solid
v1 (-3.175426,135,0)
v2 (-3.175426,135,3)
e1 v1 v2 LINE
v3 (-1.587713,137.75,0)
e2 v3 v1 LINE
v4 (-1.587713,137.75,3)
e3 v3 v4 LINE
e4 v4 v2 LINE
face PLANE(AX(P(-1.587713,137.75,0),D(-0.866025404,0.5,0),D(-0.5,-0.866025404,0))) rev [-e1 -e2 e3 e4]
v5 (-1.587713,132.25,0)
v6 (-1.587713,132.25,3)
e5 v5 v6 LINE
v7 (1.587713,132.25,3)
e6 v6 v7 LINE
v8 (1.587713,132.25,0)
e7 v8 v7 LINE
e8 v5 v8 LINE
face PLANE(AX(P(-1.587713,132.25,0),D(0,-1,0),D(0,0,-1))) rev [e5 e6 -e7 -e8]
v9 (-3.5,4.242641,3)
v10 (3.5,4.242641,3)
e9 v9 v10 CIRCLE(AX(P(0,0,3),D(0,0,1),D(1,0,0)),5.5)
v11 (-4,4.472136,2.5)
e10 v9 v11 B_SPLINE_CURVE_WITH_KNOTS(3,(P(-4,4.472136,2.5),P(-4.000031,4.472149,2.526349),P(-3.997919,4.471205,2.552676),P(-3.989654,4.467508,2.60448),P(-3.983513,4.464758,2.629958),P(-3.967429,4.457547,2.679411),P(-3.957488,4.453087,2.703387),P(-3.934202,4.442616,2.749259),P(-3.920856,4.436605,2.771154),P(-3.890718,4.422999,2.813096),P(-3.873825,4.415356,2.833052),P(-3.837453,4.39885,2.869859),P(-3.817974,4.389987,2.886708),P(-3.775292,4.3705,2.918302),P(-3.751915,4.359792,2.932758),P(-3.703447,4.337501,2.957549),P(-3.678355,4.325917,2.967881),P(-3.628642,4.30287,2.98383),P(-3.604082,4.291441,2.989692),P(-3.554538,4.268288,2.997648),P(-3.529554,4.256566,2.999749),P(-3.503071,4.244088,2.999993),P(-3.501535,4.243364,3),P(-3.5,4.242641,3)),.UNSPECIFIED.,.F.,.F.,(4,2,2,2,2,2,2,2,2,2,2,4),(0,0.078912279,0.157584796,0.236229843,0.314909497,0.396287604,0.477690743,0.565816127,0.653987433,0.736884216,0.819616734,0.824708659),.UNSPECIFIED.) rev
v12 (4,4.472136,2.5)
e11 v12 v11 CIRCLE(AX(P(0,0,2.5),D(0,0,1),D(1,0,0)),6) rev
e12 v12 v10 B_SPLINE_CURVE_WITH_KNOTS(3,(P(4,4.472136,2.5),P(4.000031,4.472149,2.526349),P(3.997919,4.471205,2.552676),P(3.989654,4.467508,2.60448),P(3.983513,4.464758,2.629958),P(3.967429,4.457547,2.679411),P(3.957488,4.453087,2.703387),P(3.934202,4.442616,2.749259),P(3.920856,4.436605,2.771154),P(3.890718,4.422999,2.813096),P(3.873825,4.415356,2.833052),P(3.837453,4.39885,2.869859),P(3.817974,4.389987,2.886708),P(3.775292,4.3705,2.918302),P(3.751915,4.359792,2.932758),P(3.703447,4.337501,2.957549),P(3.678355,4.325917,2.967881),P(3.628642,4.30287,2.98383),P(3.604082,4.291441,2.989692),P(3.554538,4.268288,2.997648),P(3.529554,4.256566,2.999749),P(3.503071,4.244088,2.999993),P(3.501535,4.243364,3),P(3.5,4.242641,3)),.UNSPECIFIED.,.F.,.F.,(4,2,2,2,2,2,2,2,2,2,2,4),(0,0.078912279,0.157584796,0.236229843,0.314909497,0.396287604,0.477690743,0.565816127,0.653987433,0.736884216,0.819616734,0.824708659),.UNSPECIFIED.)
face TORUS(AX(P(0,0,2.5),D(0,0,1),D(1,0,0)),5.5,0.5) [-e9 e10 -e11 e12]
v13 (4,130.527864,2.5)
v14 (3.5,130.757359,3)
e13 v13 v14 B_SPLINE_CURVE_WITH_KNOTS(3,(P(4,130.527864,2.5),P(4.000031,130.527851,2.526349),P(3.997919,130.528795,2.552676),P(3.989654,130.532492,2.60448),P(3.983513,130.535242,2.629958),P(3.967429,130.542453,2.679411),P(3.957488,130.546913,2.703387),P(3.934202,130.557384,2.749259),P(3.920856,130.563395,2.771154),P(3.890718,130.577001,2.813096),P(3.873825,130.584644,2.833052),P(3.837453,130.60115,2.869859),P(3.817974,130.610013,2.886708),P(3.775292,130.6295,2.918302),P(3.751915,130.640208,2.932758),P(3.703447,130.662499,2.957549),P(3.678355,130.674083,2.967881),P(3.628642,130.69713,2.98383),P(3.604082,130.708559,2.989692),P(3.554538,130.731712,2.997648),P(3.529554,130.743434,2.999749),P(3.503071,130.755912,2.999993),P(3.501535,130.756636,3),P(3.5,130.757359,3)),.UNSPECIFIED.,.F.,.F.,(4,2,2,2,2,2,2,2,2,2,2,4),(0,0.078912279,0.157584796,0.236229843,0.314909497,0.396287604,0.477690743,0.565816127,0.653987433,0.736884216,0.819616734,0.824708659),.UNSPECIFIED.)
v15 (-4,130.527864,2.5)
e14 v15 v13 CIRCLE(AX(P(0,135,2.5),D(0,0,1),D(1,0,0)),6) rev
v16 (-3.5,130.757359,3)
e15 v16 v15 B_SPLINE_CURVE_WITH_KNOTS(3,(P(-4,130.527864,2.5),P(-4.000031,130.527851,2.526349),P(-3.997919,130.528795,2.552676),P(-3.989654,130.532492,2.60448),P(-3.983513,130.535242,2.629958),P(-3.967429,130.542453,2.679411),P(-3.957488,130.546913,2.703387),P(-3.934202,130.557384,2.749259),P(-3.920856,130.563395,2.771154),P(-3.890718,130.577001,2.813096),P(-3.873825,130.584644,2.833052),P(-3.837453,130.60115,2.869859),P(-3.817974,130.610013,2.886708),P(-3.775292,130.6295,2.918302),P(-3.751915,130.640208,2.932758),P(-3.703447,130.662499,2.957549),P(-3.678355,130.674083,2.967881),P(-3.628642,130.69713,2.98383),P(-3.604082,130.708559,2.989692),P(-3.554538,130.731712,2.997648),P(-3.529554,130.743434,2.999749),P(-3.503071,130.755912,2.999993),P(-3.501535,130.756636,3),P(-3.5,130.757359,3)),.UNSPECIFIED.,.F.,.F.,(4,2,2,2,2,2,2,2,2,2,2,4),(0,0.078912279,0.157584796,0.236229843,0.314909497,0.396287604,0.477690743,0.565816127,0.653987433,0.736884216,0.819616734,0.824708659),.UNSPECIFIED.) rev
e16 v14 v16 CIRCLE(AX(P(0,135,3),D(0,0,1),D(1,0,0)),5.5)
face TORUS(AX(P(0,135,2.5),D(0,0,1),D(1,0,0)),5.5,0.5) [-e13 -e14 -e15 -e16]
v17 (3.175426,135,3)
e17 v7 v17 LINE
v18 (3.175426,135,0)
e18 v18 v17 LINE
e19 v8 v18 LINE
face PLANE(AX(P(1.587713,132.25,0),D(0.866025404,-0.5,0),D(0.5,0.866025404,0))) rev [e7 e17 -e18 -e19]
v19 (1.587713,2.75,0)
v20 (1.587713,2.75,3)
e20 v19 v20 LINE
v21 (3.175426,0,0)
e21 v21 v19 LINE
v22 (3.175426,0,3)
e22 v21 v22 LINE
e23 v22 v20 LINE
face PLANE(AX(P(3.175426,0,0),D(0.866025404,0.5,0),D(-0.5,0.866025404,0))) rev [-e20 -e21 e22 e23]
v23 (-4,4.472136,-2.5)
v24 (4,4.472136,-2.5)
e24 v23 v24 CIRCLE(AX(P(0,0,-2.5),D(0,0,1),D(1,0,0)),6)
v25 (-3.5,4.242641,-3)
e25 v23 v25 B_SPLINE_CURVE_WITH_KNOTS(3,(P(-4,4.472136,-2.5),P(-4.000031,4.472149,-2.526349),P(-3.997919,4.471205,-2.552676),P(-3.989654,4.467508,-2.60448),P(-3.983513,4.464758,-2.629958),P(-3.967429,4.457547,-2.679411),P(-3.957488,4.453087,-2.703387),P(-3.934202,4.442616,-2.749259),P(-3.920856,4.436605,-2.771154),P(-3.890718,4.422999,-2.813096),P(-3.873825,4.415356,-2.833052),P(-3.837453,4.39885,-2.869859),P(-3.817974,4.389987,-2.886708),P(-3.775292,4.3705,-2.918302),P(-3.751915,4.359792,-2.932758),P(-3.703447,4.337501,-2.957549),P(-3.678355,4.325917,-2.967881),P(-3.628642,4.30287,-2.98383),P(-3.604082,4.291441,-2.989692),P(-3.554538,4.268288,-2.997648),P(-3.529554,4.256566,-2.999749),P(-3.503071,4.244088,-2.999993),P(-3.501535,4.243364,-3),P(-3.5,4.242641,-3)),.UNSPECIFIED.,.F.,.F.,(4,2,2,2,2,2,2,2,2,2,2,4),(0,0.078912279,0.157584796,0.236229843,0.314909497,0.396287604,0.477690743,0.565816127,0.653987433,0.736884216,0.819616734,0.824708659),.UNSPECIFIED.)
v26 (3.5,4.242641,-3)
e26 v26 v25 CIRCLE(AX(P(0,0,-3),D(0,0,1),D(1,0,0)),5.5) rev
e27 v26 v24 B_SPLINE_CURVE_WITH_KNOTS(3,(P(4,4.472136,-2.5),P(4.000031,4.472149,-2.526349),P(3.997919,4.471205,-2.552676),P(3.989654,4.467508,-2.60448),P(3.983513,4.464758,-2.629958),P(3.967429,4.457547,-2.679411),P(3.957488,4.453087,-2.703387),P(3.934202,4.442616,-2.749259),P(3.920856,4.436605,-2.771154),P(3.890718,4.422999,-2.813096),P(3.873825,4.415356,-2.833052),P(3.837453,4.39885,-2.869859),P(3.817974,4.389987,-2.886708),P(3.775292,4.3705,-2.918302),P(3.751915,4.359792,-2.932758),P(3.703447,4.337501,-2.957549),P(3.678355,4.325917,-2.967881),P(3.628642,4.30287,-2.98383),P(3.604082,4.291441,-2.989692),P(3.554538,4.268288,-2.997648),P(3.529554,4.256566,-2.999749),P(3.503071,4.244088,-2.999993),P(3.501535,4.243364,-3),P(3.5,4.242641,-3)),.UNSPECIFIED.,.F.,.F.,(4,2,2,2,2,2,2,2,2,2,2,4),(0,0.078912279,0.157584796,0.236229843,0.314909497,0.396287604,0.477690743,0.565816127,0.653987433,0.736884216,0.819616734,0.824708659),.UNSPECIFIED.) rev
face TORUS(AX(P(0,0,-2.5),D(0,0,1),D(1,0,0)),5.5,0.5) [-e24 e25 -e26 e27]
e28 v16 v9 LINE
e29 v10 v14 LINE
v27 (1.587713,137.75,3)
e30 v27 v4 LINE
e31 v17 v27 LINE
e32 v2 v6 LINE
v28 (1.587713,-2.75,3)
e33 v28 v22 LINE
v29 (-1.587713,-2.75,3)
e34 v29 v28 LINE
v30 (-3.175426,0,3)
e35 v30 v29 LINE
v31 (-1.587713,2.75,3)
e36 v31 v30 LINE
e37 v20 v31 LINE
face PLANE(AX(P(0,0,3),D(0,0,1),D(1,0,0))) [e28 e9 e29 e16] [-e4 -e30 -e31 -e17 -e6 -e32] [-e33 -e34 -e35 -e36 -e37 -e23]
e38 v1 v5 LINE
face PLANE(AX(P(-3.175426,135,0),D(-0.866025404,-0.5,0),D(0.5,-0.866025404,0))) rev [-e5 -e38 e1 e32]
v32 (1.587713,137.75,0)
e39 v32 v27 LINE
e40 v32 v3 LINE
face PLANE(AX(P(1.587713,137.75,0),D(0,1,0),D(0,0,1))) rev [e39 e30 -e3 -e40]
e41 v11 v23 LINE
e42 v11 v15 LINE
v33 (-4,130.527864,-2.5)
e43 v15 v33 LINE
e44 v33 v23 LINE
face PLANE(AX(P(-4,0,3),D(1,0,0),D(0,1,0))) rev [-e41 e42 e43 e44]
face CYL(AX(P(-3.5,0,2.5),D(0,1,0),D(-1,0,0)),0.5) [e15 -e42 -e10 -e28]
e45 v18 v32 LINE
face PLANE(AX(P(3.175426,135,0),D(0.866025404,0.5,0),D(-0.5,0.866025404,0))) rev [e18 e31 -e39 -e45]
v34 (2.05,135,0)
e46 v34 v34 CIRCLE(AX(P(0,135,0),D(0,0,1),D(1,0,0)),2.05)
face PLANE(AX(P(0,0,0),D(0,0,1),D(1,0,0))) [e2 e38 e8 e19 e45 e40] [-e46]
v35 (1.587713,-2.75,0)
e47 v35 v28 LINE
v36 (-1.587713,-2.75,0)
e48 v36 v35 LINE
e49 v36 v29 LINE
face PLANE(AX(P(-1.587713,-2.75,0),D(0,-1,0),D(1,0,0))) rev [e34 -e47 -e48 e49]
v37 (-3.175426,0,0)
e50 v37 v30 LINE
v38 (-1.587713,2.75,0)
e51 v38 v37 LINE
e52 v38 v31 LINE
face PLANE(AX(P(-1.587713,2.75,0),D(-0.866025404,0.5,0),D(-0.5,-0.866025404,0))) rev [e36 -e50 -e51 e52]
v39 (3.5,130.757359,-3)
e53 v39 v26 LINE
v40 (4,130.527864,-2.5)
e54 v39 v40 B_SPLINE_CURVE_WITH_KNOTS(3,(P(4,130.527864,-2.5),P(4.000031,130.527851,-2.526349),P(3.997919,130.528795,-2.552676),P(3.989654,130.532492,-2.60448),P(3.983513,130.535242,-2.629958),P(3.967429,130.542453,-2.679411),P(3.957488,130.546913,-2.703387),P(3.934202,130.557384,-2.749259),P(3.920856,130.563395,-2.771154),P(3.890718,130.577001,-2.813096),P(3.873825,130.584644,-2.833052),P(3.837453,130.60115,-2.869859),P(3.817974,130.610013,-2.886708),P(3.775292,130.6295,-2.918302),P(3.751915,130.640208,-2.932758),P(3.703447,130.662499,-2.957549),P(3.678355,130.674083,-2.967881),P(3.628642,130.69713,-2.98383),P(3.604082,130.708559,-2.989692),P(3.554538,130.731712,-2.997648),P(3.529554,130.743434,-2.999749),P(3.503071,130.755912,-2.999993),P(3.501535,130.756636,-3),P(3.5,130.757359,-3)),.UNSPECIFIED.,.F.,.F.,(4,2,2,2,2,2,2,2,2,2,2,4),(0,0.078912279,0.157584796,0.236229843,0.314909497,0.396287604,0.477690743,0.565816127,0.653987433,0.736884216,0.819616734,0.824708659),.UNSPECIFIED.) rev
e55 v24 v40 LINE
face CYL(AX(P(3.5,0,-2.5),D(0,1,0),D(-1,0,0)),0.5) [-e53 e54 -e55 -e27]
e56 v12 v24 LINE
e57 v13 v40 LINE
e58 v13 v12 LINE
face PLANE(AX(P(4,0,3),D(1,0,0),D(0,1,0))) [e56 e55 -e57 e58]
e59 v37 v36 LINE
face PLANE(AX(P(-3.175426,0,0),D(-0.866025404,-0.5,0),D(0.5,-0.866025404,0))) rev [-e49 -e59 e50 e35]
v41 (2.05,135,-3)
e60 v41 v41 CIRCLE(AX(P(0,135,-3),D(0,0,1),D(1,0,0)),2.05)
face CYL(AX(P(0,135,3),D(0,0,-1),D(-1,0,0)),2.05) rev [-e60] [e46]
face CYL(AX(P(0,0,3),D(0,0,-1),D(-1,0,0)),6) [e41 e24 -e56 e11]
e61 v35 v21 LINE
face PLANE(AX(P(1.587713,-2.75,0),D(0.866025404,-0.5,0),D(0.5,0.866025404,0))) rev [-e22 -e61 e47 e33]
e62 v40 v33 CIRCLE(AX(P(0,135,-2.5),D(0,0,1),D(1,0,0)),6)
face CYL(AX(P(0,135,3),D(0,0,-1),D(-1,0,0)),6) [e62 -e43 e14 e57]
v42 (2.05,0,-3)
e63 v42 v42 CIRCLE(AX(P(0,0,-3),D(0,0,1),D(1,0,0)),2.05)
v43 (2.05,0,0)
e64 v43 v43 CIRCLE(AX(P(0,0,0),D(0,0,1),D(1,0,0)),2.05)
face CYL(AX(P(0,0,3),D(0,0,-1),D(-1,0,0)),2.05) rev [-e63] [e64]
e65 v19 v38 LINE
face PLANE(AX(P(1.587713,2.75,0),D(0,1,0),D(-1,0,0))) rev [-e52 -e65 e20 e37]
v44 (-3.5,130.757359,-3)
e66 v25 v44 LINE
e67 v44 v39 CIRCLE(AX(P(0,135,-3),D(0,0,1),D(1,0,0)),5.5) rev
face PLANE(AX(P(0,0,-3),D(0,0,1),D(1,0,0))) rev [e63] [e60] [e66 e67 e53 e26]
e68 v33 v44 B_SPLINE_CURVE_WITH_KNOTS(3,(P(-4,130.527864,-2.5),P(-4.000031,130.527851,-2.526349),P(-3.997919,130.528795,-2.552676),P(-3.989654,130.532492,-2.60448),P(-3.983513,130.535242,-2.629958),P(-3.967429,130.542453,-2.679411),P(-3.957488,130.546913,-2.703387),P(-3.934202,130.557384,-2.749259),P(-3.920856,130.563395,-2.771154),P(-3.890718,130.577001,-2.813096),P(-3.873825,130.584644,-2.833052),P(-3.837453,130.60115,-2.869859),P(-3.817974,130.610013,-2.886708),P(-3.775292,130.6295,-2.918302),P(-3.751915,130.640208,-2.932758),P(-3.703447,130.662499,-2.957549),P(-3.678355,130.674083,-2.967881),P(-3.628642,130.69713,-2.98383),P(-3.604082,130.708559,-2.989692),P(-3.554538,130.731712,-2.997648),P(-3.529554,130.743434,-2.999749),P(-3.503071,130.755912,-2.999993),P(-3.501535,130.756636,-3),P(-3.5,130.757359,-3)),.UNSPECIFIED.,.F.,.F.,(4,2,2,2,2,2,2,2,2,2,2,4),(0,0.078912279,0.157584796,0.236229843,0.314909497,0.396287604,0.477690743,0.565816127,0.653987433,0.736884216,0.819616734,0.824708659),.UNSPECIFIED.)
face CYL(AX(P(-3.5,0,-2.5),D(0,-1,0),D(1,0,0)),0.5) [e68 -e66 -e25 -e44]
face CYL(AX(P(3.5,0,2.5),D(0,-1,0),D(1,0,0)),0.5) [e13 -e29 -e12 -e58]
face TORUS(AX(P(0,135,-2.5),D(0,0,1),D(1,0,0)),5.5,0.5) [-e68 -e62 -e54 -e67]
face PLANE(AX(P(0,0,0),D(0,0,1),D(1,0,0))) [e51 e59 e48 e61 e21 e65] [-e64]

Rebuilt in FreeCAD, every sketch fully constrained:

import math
import FreeCAD as App
import Part
import Sketcher

V = App.Vector
Q = App.Units.Quantity


def edges_at(feature, points):
    """Names of the edges that pass closest to the given points."""
    edges = feature.Shape.Edges
    near = lambda p: min(range(len(edges)), key=lambda i: edges[i].distToShape(Part.Vertex(*p))[0])
    return sorted({f"Edge{near(p) + 1}" for p in points})

doc = App.newDocument("Part")
body = doc.addObject("PartDesign::Body", "Body")

sketch1 = doc.addObject("Sketcher::SketchObject", "Sketch")
body.addObject(sketch1)
sketch1.AttachmentSupport = (doc.XY_Plane, [""])
sketch1.MapMode = "FlatFace"
sketch1.addGeometry([
    Part.LineSegment(V(-4, 130.527864, 0), V(-4, 4.472136, 0)),
    Part.ArcOfCircle(Part.Circle(V(0, 0, 0), V(0, 0, 1), 6), math.radians(131.810315), math.radians(408.189685)),
    Part.LineSegment(V(4, 4.472136, 0), V(4, 130.527864, 0)),
    Part.ArcOfCircle(Part.Circle(V(0, 135, 0), V(0, 0, 1), 6), math.radians(-48.189685), math.radians(228.189685)),
    Part.Circle(V(0, 0, 0), V(0, 0, 1), 2.05),
    Part.Circle(V(0, 135, 0), V(0, 0, 1), 2.05),
], False)
sketch1.addConstraint([
    Sketcher.Constraint("Coincident", 0, 2, 1, 1),
    Sketcher.Constraint("Coincident", 1, 2, 2, 1),
    Sketcher.Constraint("Coincident", 2, 2, 3, 1),
    Sketcher.Constraint("Coincident", 3, 2, 0, 1),
    Sketcher.Constraint("Vertical", 0),
    Sketcher.Constraint("Vertical", 2),
    Sketcher.Constraint("Coincident", 1, 3, -1, 1),
    Sketcher.Constraint("Coincident", 4, 3, -1, 1),
    Sketcher.Constraint("Coincident", 5, 3, 3, 3),
    Sketcher.Constraint("Equal", 1, 3),
    Sketcher.Constraint("Equal", 4, 5),
    Sketcher.Constraint("Symmetric", 2, 2, 3, 2, -2),
    Sketcher.Constraint("Radius", 1, Q("6 mm")),
    Sketcher.Constraint("Diameter", 4, Q("4.1 mm")),
    Sketcher.Constraint("DistanceY", -1, 1, 3, 3, Q("135 mm")),
    Sketcher.Constraint("DistanceX", 0, 2, -1, 1, Q("4 mm")),
])
pad1 = doc.addObject("PartDesign::Pad", "Pad")
body.addObject(pad1)
pad1.Profile = sketch1
pad1.Length = 6
pad1.Midplane = True

sketch2 = doc.addObject("Sketcher::SketchObject", "Sketch001")
body.addObject(sketch2)
sketch2.AttachmentSupport = (doc.XY_Plane, [""])
sketch2.MapMode = "FlatFace"
sketch2.AttachmentOffset = App.Placement(V(0, 0, 3), App.Rotation())
sketch2.addGeometry([
    Part.LineSegment(V(1.587713, -2.75, 0), V(3.175426, 0, 0)),
    Part.LineSegment(V(3.175426, 0, 0), V(1.587713, 2.75, 0)),
    Part.LineSegment(V(1.587713, 2.75, 0), V(-1.587713, 2.75, 0)),
    Part.LineSegment(V(-1.587713, 2.75, 0), V(-3.175426, 0, 0)),
    Part.LineSegment(V(-3.175426, 0, 0), V(-1.587713, -2.75, 0)),
    Part.LineSegment(V(-1.587713, -2.75, 0), V(1.587713, -2.75, 0)),
    Part.LineSegment(V(1.587713, 132.25, 0), V(3.175426, 135, 0)),
    Part.LineSegment(V(3.175426, 135, 0), V(1.587713, 137.75, 0)),
    Part.LineSegment(V(1.587713, 137.75, 0), V(-1.587713, 137.75, 0)),
    Part.LineSegment(V(-1.587713, 137.75, 0), V(-3.175426, 135, 0)),
    Part.LineSegment(V(-3.175426, 135, 0), V(-1.587713, 132.25, 0)),
    Part.LineSegment(V(-1.587713, 132.25, 0), V(1.587713, 132.25, 0)),
], False)
sketch2.addConstraint([
    Sketcher.Constraint("Coincident", 0, 2, 1, 1),
    Sketcher.Constraint("Coincident", 1, 2, 2, 1),
    Sketcher.Constraint("Coincident", 2, 2, 3, 1),
    Sketcher.Constraint("Coincident", 3, 2, 4, 1),
    Sketcher.Constraint("Coincident", 4, 2, 5, 1),
    Sketcher.Constraint("Coincident", 5, 2, 0, 1),
    Sketcher.Constraint("Coincident", 6, 2, 7, 1),
    Sketcher.Constraint("Coincident", 7, 2, 8, 1),
    Sketcher.Constraint("Coincident", 8, 2, 9, 1),
    Sketcher.Constraint("Coincident", 9, 2, 10, 1),
    Sketcher.Constraint("Coincident", 10, 2, 11, 1),
    Sketcher.Constraint("Coincident", 11, 2, 6, 1),
    Sketcher.Constraint("Horizontal", 2),
    Sketcher.Constraint("Horizontal", 5),
    Sketcher.Constraint("Horizontal", 8),
    Sketcher.Constraint("Horizontal", 11),
    Sketcher.Constraint("Symmetric", 0, 2, 3, 2, -1, 1),
    Sketcher.Constraint("Symmetric", 1, 2, 4, 2, -1, 1),
    Sketcher.Constraint("Symmetric", 6, 2, 9, 2, -2),
    Sketcher.Constraint("PointOnObject", 0, 2, -1),
    Sketcher.Constraint("Parallel", 0, 3),
    Sketcher.Constraint("Parallel", 3, 6),
    Sketcher.Constraint("Parallel", 4, 7),
    Sketcher.Constraint("Parallel", 6, 9),
    Sketcher.Constraint("Parallel", 7, 10),
    Sketcher.Constraint("Vertical", 2, 2, 4, 2),
    Sketcher.Constraint("Vertical", 0, 2, 6, 2),
    Sketcher.Constraint("Vertical", 5, 2, 7, 2),
    Sketcher.Constraint("Vertical", 8, 2, 10, 2),
    Sketcher.Constraint("Angle", 0, Q("60 deg")),
    Sketcher.Constraint("DistanceY", -1, 1, 6, 2, Q("135 mm")),
    Sketcher.Constraint("DistanceY", 4, 2, 2, 2, Q("5.5 mm")),
    Sketcher.Constraint("DistanceX", 2, 2, 2, 1, Q("3.175426 mm")),
])
pocket1 = doc.addObject("PartDesign::Pocket", "Pocket")
body.addObject(pocket1)
pocket1.Profile = sketch2
pocket1.Length = 3
doc.recompute()

fillet = doc.addObject("PartDesign::Fillet", "Fillet")
body.addObject(fillet)
fillet.Base = (pocket1, edges_at(pocket1, [
    (-4, 67.5, 3),
    (0, -6, 3),
    (4, 67.5, 3),
    (0, 141, 3),
    (0, 141, -3),
    (4, 67.5, -3),
    (0, -6, -3),
    (-4, 67.5, -3),
]))
fillet.Radius = 0.5

doc.recompute()
